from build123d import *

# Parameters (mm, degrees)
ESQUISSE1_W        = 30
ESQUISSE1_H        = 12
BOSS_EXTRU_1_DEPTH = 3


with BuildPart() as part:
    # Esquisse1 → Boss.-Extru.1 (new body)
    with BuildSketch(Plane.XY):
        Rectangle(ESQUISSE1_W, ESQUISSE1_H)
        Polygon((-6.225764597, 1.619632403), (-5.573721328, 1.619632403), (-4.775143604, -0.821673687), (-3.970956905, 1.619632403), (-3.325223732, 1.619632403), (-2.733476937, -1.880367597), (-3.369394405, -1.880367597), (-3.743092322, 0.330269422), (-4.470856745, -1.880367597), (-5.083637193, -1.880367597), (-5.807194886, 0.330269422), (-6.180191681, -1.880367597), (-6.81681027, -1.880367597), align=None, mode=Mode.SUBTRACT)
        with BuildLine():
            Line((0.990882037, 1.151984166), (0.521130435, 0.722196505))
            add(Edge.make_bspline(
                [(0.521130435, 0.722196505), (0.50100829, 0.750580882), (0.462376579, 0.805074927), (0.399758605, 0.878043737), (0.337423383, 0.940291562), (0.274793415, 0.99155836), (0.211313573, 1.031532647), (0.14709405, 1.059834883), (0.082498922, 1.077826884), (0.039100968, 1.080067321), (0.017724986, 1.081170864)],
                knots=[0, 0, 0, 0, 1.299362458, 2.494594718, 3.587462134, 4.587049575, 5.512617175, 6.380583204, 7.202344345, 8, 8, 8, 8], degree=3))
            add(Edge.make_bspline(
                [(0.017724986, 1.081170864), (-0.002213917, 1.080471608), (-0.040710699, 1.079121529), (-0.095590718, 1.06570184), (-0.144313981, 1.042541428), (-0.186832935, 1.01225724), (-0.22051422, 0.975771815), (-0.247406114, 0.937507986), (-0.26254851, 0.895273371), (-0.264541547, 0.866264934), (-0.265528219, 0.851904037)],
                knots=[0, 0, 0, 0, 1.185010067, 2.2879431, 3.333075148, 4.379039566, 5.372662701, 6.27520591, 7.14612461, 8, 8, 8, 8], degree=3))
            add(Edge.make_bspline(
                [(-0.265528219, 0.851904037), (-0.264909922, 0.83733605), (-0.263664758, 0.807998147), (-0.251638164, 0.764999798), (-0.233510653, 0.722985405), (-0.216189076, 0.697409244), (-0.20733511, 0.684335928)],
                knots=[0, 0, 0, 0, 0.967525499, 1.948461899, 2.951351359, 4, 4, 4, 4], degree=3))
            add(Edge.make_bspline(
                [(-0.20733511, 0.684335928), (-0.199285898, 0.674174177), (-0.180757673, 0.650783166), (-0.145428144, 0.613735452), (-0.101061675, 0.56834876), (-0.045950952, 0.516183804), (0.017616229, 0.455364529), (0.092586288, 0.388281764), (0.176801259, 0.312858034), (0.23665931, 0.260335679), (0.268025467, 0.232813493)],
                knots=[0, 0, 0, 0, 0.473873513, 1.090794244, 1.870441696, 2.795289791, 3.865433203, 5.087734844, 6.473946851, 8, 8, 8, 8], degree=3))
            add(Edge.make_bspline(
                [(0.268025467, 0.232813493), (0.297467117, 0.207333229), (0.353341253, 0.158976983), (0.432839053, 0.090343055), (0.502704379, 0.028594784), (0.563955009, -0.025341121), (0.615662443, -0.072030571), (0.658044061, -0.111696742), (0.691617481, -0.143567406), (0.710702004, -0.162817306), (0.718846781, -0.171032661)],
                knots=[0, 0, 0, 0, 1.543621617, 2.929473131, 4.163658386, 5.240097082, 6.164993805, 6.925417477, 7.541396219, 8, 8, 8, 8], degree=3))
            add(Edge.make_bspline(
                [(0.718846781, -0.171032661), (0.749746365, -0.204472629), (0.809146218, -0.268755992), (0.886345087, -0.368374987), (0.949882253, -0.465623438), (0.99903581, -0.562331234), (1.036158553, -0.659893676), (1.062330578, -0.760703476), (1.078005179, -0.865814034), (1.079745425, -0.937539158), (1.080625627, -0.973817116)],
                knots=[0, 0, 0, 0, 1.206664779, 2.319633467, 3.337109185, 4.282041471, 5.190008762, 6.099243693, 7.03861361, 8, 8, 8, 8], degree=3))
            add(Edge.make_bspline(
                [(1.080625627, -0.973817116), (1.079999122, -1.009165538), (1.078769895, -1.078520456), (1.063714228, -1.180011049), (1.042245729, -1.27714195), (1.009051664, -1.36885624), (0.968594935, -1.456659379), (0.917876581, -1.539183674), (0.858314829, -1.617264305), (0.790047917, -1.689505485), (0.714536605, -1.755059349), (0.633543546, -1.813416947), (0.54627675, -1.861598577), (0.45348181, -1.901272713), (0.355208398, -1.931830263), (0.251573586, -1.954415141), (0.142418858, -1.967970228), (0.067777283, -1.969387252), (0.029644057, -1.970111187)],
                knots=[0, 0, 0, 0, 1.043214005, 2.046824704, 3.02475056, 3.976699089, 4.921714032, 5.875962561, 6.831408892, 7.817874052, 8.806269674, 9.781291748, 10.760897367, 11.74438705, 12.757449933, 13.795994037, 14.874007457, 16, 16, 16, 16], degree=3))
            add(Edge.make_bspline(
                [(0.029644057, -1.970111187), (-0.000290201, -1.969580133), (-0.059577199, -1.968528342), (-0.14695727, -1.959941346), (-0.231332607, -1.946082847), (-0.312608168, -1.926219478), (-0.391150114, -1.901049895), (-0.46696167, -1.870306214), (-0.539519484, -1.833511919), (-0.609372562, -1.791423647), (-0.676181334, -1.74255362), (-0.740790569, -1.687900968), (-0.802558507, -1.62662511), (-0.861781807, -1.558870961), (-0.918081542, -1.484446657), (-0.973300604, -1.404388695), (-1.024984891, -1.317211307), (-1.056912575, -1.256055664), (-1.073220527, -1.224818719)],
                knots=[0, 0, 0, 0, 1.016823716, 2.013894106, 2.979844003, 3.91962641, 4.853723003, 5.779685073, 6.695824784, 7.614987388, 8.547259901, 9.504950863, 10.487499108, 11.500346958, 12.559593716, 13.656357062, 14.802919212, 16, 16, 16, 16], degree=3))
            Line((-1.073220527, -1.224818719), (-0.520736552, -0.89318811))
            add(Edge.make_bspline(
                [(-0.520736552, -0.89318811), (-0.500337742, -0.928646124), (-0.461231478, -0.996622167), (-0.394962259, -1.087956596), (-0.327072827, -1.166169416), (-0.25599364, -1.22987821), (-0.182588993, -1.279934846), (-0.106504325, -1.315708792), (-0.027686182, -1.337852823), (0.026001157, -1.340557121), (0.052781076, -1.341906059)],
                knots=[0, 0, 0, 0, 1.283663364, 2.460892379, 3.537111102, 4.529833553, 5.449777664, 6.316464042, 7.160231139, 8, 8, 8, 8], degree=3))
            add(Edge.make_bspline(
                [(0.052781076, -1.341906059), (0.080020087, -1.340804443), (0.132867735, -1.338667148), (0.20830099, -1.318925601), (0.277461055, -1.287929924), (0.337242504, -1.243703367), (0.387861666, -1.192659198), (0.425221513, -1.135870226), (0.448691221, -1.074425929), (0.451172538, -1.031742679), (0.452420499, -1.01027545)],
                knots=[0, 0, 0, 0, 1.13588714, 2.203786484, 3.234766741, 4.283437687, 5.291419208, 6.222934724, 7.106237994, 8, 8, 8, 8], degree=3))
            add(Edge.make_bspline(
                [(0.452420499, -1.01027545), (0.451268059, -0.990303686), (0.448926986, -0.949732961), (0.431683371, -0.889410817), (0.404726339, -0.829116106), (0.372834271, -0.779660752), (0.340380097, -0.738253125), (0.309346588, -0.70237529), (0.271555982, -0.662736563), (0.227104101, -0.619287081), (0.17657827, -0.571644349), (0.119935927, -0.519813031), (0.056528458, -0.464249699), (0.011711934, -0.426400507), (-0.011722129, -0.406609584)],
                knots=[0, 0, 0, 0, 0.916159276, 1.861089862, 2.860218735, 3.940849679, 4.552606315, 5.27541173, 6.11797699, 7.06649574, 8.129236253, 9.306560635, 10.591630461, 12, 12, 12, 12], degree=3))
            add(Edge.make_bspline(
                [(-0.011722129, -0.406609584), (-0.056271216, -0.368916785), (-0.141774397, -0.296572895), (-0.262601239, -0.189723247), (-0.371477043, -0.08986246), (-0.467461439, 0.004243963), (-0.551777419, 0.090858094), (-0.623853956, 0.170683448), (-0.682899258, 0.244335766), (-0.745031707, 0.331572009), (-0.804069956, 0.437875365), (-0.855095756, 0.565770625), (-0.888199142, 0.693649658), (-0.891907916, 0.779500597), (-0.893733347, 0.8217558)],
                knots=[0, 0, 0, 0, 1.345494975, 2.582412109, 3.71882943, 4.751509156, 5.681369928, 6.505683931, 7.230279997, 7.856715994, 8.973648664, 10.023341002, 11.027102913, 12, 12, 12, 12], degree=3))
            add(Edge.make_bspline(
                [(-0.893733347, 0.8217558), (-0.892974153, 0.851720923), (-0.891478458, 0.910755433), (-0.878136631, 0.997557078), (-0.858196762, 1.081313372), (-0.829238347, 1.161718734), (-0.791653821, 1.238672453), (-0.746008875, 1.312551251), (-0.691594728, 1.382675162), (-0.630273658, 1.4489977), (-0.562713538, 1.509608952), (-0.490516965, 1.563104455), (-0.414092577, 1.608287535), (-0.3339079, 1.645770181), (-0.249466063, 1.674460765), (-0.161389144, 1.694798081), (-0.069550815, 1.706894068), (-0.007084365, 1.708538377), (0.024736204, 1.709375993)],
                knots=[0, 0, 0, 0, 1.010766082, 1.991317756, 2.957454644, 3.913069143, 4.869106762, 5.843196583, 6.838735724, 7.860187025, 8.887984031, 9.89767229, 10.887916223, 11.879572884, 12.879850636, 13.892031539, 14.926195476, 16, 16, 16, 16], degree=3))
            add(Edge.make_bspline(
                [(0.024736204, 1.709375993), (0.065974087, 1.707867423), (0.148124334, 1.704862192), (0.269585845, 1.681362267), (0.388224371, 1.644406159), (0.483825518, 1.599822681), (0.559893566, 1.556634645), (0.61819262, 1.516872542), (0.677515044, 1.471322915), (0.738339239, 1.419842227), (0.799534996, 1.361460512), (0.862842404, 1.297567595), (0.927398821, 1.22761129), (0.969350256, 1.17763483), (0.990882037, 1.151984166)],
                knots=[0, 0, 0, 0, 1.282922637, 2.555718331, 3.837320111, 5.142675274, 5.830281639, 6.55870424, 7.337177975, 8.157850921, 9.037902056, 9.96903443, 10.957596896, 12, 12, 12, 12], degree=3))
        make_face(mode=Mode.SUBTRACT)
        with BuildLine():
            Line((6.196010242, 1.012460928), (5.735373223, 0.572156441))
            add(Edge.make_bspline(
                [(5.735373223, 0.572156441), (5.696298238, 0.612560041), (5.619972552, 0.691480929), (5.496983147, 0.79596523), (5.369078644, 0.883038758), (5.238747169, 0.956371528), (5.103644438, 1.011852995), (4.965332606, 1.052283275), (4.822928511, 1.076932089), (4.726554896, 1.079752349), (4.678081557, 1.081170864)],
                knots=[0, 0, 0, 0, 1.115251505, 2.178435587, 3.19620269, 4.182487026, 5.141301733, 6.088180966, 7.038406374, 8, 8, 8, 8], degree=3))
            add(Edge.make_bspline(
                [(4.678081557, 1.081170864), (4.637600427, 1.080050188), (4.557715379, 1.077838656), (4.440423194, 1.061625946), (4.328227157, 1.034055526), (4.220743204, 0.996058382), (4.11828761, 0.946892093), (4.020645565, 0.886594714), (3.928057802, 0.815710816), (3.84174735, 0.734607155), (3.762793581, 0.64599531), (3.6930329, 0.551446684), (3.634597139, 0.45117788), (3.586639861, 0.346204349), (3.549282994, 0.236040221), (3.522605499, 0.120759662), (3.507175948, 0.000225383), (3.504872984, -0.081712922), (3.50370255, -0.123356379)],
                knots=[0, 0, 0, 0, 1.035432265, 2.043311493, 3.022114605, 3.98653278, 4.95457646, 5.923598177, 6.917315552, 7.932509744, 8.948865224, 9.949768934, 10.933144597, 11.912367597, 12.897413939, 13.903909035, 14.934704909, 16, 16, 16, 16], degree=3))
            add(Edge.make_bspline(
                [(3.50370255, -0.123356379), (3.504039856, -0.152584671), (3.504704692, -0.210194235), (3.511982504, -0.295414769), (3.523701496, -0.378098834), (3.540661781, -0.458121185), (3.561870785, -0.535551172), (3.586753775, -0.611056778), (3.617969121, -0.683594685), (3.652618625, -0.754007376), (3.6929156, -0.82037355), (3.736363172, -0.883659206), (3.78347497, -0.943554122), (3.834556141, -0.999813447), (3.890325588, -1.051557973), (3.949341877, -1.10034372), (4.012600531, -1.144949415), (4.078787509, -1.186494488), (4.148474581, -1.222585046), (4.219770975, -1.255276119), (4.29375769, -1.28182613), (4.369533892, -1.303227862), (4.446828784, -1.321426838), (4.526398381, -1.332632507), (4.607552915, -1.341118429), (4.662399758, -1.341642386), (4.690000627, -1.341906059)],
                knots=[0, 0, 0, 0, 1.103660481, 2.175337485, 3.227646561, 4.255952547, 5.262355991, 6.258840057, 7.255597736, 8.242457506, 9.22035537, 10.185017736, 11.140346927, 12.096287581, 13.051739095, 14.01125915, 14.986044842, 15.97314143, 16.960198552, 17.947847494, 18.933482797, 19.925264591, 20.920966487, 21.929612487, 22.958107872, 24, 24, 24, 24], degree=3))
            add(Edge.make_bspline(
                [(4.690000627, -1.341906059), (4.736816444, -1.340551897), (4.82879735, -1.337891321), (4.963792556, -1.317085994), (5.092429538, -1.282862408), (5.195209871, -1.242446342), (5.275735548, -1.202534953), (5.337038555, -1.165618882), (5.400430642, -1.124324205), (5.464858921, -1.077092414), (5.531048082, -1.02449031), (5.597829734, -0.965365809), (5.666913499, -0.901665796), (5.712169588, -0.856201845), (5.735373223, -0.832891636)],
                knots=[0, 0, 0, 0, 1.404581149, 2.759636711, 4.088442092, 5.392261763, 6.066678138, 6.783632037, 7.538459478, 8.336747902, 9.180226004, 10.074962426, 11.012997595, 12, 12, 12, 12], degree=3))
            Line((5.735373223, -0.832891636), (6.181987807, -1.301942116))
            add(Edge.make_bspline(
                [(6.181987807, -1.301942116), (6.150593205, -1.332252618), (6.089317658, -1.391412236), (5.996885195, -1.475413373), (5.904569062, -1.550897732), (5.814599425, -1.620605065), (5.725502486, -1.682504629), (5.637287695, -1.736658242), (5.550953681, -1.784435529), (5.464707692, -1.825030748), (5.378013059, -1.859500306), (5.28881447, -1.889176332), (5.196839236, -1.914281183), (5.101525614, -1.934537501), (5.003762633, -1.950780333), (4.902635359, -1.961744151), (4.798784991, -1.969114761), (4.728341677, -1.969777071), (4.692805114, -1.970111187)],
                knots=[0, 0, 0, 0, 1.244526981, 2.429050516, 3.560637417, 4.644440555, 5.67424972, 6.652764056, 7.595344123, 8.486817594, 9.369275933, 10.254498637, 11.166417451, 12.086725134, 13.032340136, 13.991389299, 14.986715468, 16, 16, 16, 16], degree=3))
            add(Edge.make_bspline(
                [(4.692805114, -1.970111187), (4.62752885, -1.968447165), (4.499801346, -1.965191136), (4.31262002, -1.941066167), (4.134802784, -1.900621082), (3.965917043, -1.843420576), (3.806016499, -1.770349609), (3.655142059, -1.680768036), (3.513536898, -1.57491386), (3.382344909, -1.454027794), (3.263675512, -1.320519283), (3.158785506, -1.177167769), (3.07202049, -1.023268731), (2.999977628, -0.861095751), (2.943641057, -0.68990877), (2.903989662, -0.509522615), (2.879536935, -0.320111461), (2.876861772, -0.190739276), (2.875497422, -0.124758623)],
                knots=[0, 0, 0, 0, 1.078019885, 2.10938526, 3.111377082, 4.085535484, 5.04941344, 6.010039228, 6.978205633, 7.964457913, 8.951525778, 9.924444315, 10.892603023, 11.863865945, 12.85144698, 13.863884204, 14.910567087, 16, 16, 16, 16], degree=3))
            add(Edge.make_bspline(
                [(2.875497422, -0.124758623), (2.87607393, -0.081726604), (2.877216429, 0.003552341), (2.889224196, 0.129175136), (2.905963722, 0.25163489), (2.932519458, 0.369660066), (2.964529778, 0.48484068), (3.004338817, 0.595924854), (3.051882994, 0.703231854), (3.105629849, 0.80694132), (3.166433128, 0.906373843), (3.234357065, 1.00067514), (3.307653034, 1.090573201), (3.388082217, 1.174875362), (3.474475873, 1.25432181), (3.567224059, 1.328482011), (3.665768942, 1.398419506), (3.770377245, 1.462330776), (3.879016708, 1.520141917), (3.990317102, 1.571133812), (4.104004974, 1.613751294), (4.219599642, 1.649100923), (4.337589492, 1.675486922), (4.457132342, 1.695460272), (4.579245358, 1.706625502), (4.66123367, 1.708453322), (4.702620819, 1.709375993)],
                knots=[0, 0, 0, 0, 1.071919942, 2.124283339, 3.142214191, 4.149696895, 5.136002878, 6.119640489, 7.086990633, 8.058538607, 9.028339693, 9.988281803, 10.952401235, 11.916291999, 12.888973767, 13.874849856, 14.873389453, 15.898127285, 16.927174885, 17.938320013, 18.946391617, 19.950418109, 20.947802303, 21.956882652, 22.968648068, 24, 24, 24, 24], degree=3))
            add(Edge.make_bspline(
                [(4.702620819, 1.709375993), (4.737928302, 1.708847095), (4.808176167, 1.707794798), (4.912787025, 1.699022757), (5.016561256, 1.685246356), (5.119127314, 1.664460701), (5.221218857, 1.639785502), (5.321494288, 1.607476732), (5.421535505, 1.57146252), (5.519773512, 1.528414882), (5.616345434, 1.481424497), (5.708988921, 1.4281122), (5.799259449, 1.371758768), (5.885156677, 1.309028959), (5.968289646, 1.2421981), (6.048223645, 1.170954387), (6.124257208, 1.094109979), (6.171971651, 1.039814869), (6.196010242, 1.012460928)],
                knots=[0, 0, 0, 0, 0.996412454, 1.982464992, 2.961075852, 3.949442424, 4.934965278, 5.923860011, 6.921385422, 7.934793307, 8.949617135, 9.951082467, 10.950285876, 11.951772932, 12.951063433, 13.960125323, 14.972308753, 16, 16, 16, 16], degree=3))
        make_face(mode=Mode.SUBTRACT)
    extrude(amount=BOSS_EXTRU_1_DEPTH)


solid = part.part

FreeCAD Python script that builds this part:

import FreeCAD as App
import Part
import Sketcher

V = App.Vector

doc = App.newDocument("Part")
body = doc.addObject("PartDesign::Body", "Body")

# Sketch on XY plane
sketch1 = doc.addObject("Sketcher::SketchObject", "Sketch")
body.addObject(sketch1)
sketch1.AttachmentSupport = (doc.XY_Plane, [""])
sketch1.MapMode = "FlatFace"
sketch1.addGeometry(Part.LineSegment(V(-15, 6, 0), V(-15, -6, 0)), False)
sketch1.addGeometry(Part.LineSegment(V(-15, -6, 0), V(15, -6, 0)), False)
sketch1.addGeometry(Part.LineSegment(V(15, -6, 0), V(15, 6, 0)), False)
sketch1.addGeometry(Part.LineSegment(V(15, 6, 0), V(-15, 6, 0)), False)
sketch1.addGeometry(Part.LineSegment(V(-6.81681, -1.880368, 0), V(-6.225765, 1.619632, 0)), False)
sketch1.addGeometry(Part.LineSegment(V(-6.225765, 1.619632, 0), V(-5.573721, 1.619632, 0)), False)
sketch1.addGeometry(Part.LineSegment(V(-5.573721, 1.619632, 0), V(-4.775144, -0.821674, 0)), False)
sketch1.addGeometry(Part.LineSegment(V(-4.775144, -0.821674, 0), V(-3.970957, 1.619632, 0)), False)
sketch1.addGeometry(Part.LineSegment(V(-3.970957, 1.619632, 0), V(-3.325224, 1.619632, 0)), False)
sketch1.addGeometry(Part.LineSegment(V(-3.325224, 1.619632, 0), V(-2.733477, -1.880368, 0)), False)
sketch1.addGeometry(Part.LineSegment(V(-2.733477, -1.880368, 0), V(-3.369394, -1.880368, 0)), False)
sketch1.addGeometry(Part.LineSegment(V(-3.369394, -1.880368, 0), V(-3.743092, 0.330269, 0)), False)
sketch1.addGeometry(Part.LineSegment(V(-3.743092, 0.330269, 0), V(-4.470857, -1.880368, 0)), False)
sketch1.addGeometry(Part.LineSegment(V(-4.470857, -1.880368, 0), V(-5.083637, -1.880368, 0)), False)
sketch1.addGeometry(Part.LineSegment(V(-5.083637, -1.880368, 0), V(-5.807195, 0.330269, 0)), False)
sketch1.addGeometry(Part.LineSegment(V(-5.807195, 0.330269, 0), V(-6.180192, -1.880368, 0)), False)
sketch1.addGeometry(Part.LineSegment(V(-6.180192, -1.880368, 0), V(-6.81681, -1.880368, 0)), False)
sketch1.addGeometry(Part.BSplineCurve([V(0.024736, 1.709376, 0), V(0.065974, 1.707867, 0), V(0.148124, 1.704862, 0), V(0.269586, 1.681362, 0), V(0.388224, 1.644406, 0), V(0.483826, 1.599823, 0), V(0.559894, 1.556635, 0), V(0.618193, 1.516873, 0), V(0.677515, 1.471323, 0), V(0.738339, 1.419842, 0), V(0.799535, 1.361461, 0), V(0.862842, 1.297568, 0), V(0.927399, 1.227611, 0), V(0.96935, 1.177635, 0), V(0.990882, 1.151984, 0)], [4, 1, 1, 1, 1, 1, 1, 1, 1, 1, 1, 1, 4], [0, 1.282922637, 2.555718331, 3.837320111, 5.142675274, 5.830281639, 6.55870424, 7.337177975, 8.157850921, 9.037902056, 9.96903443, 10.957596896, 12], False, 3, [1, 1, 1, 1, 1, 1, 1, 1, 1, 1, 1, 1, 1, 1, 1], False), False)
sketch1.addGeometry(Part.LineSegment(V(0.990882, 1.151984, 0), V(0.52113, 0.722197, 0)), False)
sketch1.addGeometry(Part.BSplineCurve([V(0.52113, 0.722197, 0), V(0.501008, 0.750581, 0), V(0.462377, 0.805075, 0), V(0.399759, 0.878044, 0), V(0.337423, 0.940292, 0), V(0.274793, 0.991558, 0), V(0.211314, 1.031533, 0), V(0.147094, 1.059835, 0), V(0.082499, 1.077827, 0), V(0.039101, 1.080067, 0), V(0.017725, 1.081171, 0)], [4, 1, 1, 1, 1, 1, 1, 1, 4], [0, 1.299362458, 2.494594718, 3.587462134, 4.587049575, 5.512617175, 6.380583204, 7.202344345, 8], False, 3, [1, 1, 1, 1, 1, 1, 1, 1, 1, 1, 1], False), False)
sketch1.addGeometry(Part.BSplineCurve([V(0.017725, 1.081171, 0), V(-0.002214, 1.080472, 0), V(-0.040711, 1.079122, 0), V(-0.095591, 1.065702, 0), V(-0.144314, 1.042541, 0), V(-0.186833, 1.012257, 0), V(-0.220514, 0.975772, 0), V(-0.247406, 0.937508, 0), V(-0.262549, 0.895273, 0), V(-0.264542, 0.866265, 0), V(-0.265528, 0.851904, 0)], [4, 1, 1, 1, 1, 1, 1, 1, 4], [0, 1.185010067, 2.2879431, 3.333075148, 4.379039566, 5.372662701, 6.27520591, 7.14612461, 8], False, 3, [1, 1, 1, 1, 1, 1, 1, 1, 1, 1, 1], False), False)
sketch1.addGeometry(Part.BSplineCurve([V(-0.265528, 0.851904, 0), V(-0.26491, 0.837336, 0), V(-0.263665, 0.807998, 0), V(-0.251638, 0.765, 0), V(-0.233511, 0.722985, 0), V(-0.216189, 0.697409, 0), V(-0.207335, 0.684336, 0)], [4, 1, 1, 1, 4], [0, 0.967525499, 1.948461899, 2.951351359, 4], False, 3, [1, 1, 1, 1, 1, 1, 1], False), False)
sketch1.addGeometry(Part.BSplineCurve([V(-0.207335, 0.684336, 0), V(-0.199286, 0.674174, 0), V(-0.180758, 0.650783, 0), V(-0.145428, 0.613735, 0), V(-0.101062, 0.568349, 0), V(-0.045951, 0.516184, 0), V(0.017616, 0.455365, 0), V(0.092586, 0.388282, 0), V(0.176801, 0.312858, 0), V(0.236659, 0.260336, 0), V(0.268025, 0.232813, 0)], [4, 1, 1, 1, 1, 1, 1, 1, 4], [0, 0.473873513, 1.090794244, 1.870441696, 2.795289791, 3.865433203, 5.087734844, 6.473946851, 8], False, 3, [1, 1, 1, 1, 1, 1, 1, 1, 1, 1, 1], False), False)
sketch1.addGeometry(Part.BSplineCurve([V(0.268025, 0.232813, 0), V(0.297467, 0.207333, 0), V(0.353341, 0.158977, 0), V(0.432839, 0.090343, 0), V(0.502704, 0.028595, 0), V(0.563955, -0.025341, 0), V(0.615662, -0.072031, 0), V(0.658044, -0.111697, 0), V(0.691617, -0.143567, 0), V(0.710702, -0.162817, 0), V(0.718847, -0.171033, 0)], [4, 1, 1, 1, 1, 1, 1, 1, 4], [0, 1.543621617, 2.929473131, 4.163658386, 5.240097082, 6.164993805, 6.925417477, 7.541396219, 8], False, 3, [1, 1, 1, 1, 1, 1, 1, 1, 1, 1, 1], False), False)
sketch1.addGeometry(Part.BSplineCurve([V(0.718847, -0.171033, 0), V(0.749746, -0.204473, 0), V(0.809146, -0.268756, 0), V(0.886345, -0.368375, 0), V(0.949882, -0.465623, 0), V(0.999036, -0.562331, 0), V(1.036159, -0.659894, 0), V(1.062331, -0.760703, 0), V(1.078005, -0.865814, 0), V(1.079745, -0.937539, 0), V(1.080626, -0.973817, 0)], [4, 1, 1, 1, 1, 1, 1, 1, 4], [0, 1.206664779, 2.319633467, 3.337109185, 4.282041471, 5.190008762, 6.099243693, 7.03861361, 8], False, 3, [1, 1, 1, 1, 1, 1, 1, 1, 1, 1, 1], False), False)
sketch1.addGeometry(Part.BSplineCurve([V(1.080626, -0.973817, 0), V(1.079999, -1.009166, 0), V(1.07877, -1.07852, 0), V(1.063714, -1.180011, 0), V(1.042246, -1.277142, 0), V(1.009052, -1.368856, 0), V(0.968595, -1.456659, 0), V(0.917877, -1.539184, 0), V(0.858315, -1.617264, 0), V(0.790048, -1.689505, 0), V(0.714537, -1.755059, 0), V(0.633544, -1.813417, 0), V(0.546277, -1.861599, 0), V(0.453482, -1.901273, 0), V(0.355208, -1.93183, 0), V(0.251574, -1.954415, 0), V(0.142419, -1.96797, 0), V(0.067777, -1.969387, 0), V(0.029644, -1.970111, 0)], [4, 1, 1, 1, 1, 1, 1, 1, 1, 1, 1, 1, 1, 1, 1, 1, 4], [0, 1.043214005, 2.046824704, 3.02475056, 3.976699089, 4.921714032, 5.875962561, 6.831408892, 7.817874052, 8.806269674, 9.781291748, 10.760897367, 11.74438705, 12.757449933, 13.795994037, 14.874007457, 16], False, 3, [1, 1, 1, 1, 1, 1, 1, 1, 1, 1, 1, 1, 1, 1, 1, 1, 1, 1, 1], False), False)
sketch1.addGeometry(Part.BSplineCurve([V(0.029644, -1.970111, 0), V(-0.00029, -1.96958, 0), V(-0.059577, -1.968528, 0), V(-0.146957, -1.959941, 0), V(-0.231333, -1.946083, 0), V(-0.312608, -1.926219, 0), V(-0.39115, -1.90105, 0), V(-0.466962, -1.870306, 0), V(-0.539519, -1.833512, 0), V(-0.609373, -1.791424, 0), V(-0.676181, -1.742554, 0), V(-0.740791, -1.687901, 0), V(-0.802559, -1.626625, 0), V(-0.861782, -1.558871, 0), V(-0.918082, -1.484447, 0), V(-0.973301, -1.404389, 0), V(-1.024985, -1.317211, 0), V(-1.056913, -1.256056, 0), V(-1.073221, -1.224819, 0)], [4, 1, 1, 1, 1, 1, 1, 1, 1, 1, 1, 1, 1, 1, 1, 1, 4], [0, 1.016823716, 2.013894106, 2.979844003, 3.91962641, 4.853723003, 5.779685073, 6.695824784, 7.614987388, 8.547259901, 9.504950863, 10.487499108, 11.500346958, 12.559593716, 13.656357062, 14.802919212, 16], False, 3, [1, 1, 1, 1, 1, 1, 1, 1, 1, 1, 1, 1, 1, 1, 1, 1, 1, 1, 1], False), False)
sketch1.addGeometry(Part.LineSegment(V(-1.073221, -1.224819, 0), V(-0.520737, -0.893188, 0)), False)
sketch1.addGeometry(Part.BSplineCurve([V(-0.520737, -0.893188, 0), V(-0.500338, -0.928646, 0), V(-0.461231, -0.996622, 0), V(-0.394962, -1.087957, 0), V(-0.327073, -1.166169, 0), V(-0.255994, -1.229878, 0), V(-0.182589, -1.279935, 0), V(-0.106504, -1.315709, 0), V(-0.027686, -1.337853, 0), V(0.026001, -1.340557, 0), V(0.052781, -1.341906, 0)], [4, 1, 1, 1, 1, 1, 1, 1, 4], [0, 1.283663364, 2.460892379, 3.537111102, 4.529833553, 5.449777664, 6.316464042, 7.160231139, 8], False, 3, [1, 1, 1, 1, 1, 1, 1, 1, 1, 1, 1], False), False)
sketch1.addGeometry(Part.BSplineCurve([V(0.052781, -1.341906, 0), V(0.08002, -1.340804, 0), V(0.132868, -1.338667, 0), V(0.208301, -1.318926, 0), V(0.277461, -1.28793, 0), V(0.337243, -1.243703, 0), V(0.387862, -1.192659, 0), V(0.425222, -1.13587, 0), V(0.448691, -1.074426, 0), V(0.451173, -1.031743, 0), V(0.45242, -1.010275, 0)], [4, 1, 1, 1, 1, 1, 1, 1, 4], [0, 1.13588714, 2.203786484, 3.234766741, 4.283437687, 5.291419208, 6.222934724, 7.106237994, 8], False, 3, [1, 1, 1, 1, 1, 1, 1, 1, 1, 1, 1], False), False)
sketch1.addGeometry(Part.BSplineCurve([V(0.45242, -1.010275, 0), V(0.451268, -0.990304, 0), V(0.448927, -0.949733, 0), V(0.431683, -0.889411, 0), V(0.404726, -0.829116, 0), V(0.372834, -0.779661, 0), V(0.34038, -0.738253, 0), V(0.309347, -0.702375, 0), V(0.271556, -0.662737, 0), V(0.227104, -0.619287, 0), V(0.176578, -0.571644, 0), V(0.119936, -0.519813, 0), V(0.056528, -0.46425, 0), V(0.011712, -0.426401, 0), V(-0.011722, -0.40661, 0)], [4, 1, 1, 1, 1, 1, 1, 1, 1, 1, 1, 1, 4], [0, 0.916159276, 1.861089862, 2.860218735, 3.940849679, 4.552606315, 5.27541173, 6.11797699, 7.06649574, 8.129236253, 9.306560635, 10.591630461, 12], False, 3, [1, 1, 1, 1, 1, 1, 1, 1, 1, 1, 1, 1, 1, 1, 1], False), False)
sketch1.addGeometry(Part.BSplineCurve([V(-0.011722, -0.40661, 0), V(-0.056271, -0.368917, 0), V(-0.141774, -0.296573, 0), V(-0.262601, -0.189723, 0), V(-0.371477, -0.089862, 0), V(-0.467461, 0.004244, 0), V(-0.551777, 0.090858, 0), V(-0.623854, 0.170683, 0), V(-0.682899, 0.244336, 0), V(-0.745032, 0.331572, 0), V(-0.80407, 0.437875, 0), V(-0.855096, 0.565771, 0), V(-0.888199, 0.69365, 0), V(-0.891908, 0.779501, 0), V(-0.893733, 0.821756, 0)], [4, 1, 1, 1, 1, 1, 1, 1, 1, 1, 1, 1, 4], [0, 1.345494975, 2.582412109, 3.71882943, 4.751509156, 5.681369928, 6.505683931, 7.230279997, 7.856715994, 8.973648664, 10.023341002, 11.027102913, 12], False, 3, [1, 1, 1, 1, 1, 1, 1, 1, 1, 1, 1, 1, 1, 1, 1], False), False)
sketch1.addGeometry(Part.BSplineCurve([V(-0.893733, 0.821756, 0), V(-0.892974, 0.851721, 0), V(-0.891478, 0.910755, 0), V(-0.878137, 0.997557, 0), V(-0.858197, 1.081313, 0), V(-0.829238, 1.161719, 0), V(-0.791654, 1.238672, 0), V(-0.746009, 1.312551, 0), V(-0.691595, 1.382675, 0), V(-0.630274, 1.448998, 0), V(-0.562714, 1.509609, 0), V(-0.490517, 1.563104, 0), V(-0.414093, 1.608288, 0), V(-0.333908, 1.64577, 0), V(-0.249466, 1.674461, 0), V(-0.161389, 1.694798, 0), V(-0.069551, 1.706894, 0), V(-0.007084, 1.708538, 0), V(0.024736, 1.709376, 0)], [4, 1, 1, 1, 1, 1, 1, 1, 1, 1, 1, 1, 1, 1, 1, 1, 4], [0, 1.010766082, 1.991317756, 2.957454644, 3.913069143, 4.869106762, 5.843196583, 6.838735724, 7.860187025, 8.887984031, 9.89767229, 10.887916223, 11.879572884, 12.879850636, 13.892031539, 14.926195476, 16], False, 3, [1, 1, 1, 1, 1, 1, 1, 1, 1, 1, 1, 1, 1, 1, 1, 1, 1, 1, 1], False), False)
sketch1.addGeometry(Part.BSplineCurve([V(4.702621, 1.709376, 0), V(4.737928, 1.708847, 0), V(4.808176, 1.707795, 0), V(4.912787, 1.699023, 0), V(5.016561, 1.685246, 0), V(5.119127, 1.664461, 0), V(5.221219, 1.639786, 0), V(5.321494, 1.607477, 0), V(5.421536, 1.571463, 0), V(5.519774, 1.528415, 0), V(5.616345, 1.481424, 0), V(5.708989, 1.428112, 0), V(5.799259, 1.371759, 0), V(5.885157, 1.309029, 0), V(5.96829, 1.242198, 0), V(6.048224, 1.170954, 0), V(6.124257, 1.09411, 0), V(6.171972, 1.039815, 0), V(6.19601, 1.012461, 0)], [4, 1, 1, 1, 1, 1, 1, 1, 1, 1, 1, 1, 1, 1, 1, 1, 4], [0, 0.996412454, 1.982464992, 2.961075852, 3.949442424, 4.934965278, 5.923860011, 6.921385422, 7.934793307, 8.949617135, 9.951082467, 10.950285876, 11.951772932, 12.951063433, 13.960125323, 14.972308753, 16], False, 3, [1, 1, 1, 1, 1, 1, 1, 1, 1, 1, 1, 1, 1, 1, 1, 1, 1, 1, 1], False), False)
sketch1.addGeometry(Part.LineSegment(V(6.19601, 1.012461, 0), V(5.735373, 0.572156, 0)), False)
sketch1.addGeometry(Part.BSplineCurve([V(5.735373, 0.572156, 0), V(5.696298, 0.61256, 0), V(5.619973, 0.691481, 0), V(5.496983, 0.795965, 0), V(5.369079, 0.883039, 0), V(5.238747, 0.956372, 0), V(5.103644, 1.011853, 0), V(4.965333, 1.052283, 0), V(4.822929, 1.076932, 0), V(4.726555, 1.079752, 0), V(4.678082, 1.081171, 0)], [4, 1, 1, 1, 1, 1, 1, 1, 4], [0, 1.115251505, 2.178435587, 3.19620269, 4.182487026, 5.141301733, 6.088180966, 7.038406374, 8], False, 3, [1, 1, 1, 1, 1, 1, 1, 1, 1, 1, 1], False), False)
sketch1.addGeometry(Part.BSplineCurve([V(4.678082, 1.081171, 0), V(4.6376, 1.08005, 0), V(4.557715, 1.077839, 0), V(4.440423, 1.061626, 0), V(4.328227, 1.034056, 0), V(4.220743, 0.996058, 0), V(4.118288, 0.946892, 0), V(4.020646, 0.886595, 0), V(3.928058, 0.815711, 0), V(3.841747, 0.734607, 0), V(3.762794, 0.645995, 0), V(3.693033, 0.551447, 0), V(3.634597, 0.451178, 0), V(3.58664, 0.346204, 0), V(3.549283, 0.23604, 0), V(3.522605, 0.12076, 0), V(3.507176, 0.000225, 0), V(3.504873, -0.081713, 0), V(3.503703, -0.123356, 0)], [4, 1, 1, 1, 1, 1, 1, 1, 1, 1, 1, 1, 1, 1, 1, 1, 4], [0, 1.035432265, 2.043311493, 3.022114605, 3.98653278, 4.95457646, 5.923598177, 6.917315552, 7.932509744, 8.948865224, 9.949768934, 10.933144597, 11.912367597, 12.897413939, 13.903909035, 14.934704909, 16], False, 3, [1, 1, 1, 1, 1, 1, 1, 1, 1, 1, 1, 1, 1, 1, 1, 1, 1, 1, 1], False), False)
sketch1.addGeometry(Part.BSplineCurve([V(3.503703, -0.123356, 0), V(3.50404, -0.152585, 0), V(3.504705, -0.210194, 0), V(3.511983, -0.295415, 0), V(3.523701, -0.378099, 0), V(3.540662, -0.458121, 0), V(3.561871, -0.535551, 0), V(3.586754, -0.611057, 0), V(3.617969, -0.683595, 0), V(3.652619, -0.754007, 0), V(3.692916, -0.820374, 0), V(3.736363, -0.883659, 0), V(3.783475, -0.943554, 0), V(3.834556, -0.999813, 0), V(3.890326, -1.051558, 0), V(3.949342, -1.100344, 0), V(4.012601, -1.144949, 0), V(4.078788, -1.186494, 0), V(4.148475, -1.222585, 0), V(4.219771, -1.255276, 0), V(4.293758, -1.281826, 0), V(4.369534, -1.303228, 0), V(4.446829, -1.321427, 0), V(4.526398, -1.332633, 0), V(4.607553, -1.341118, 0), V(4.6624, -1.341642, 0), V(4.690001, -1.341906, 0)], [4, 1, 1, 1, 1, 1, 1, 1, 1, 1, 1, 1, 1, 1, 1, 1, 1, 1, 1, 1, 1, 1, 1, 1, 4], [0, 1.103660481, 2.175337485, 3.227646561, 4.255952547, 5.262355991, 6.258840057, 7.255597736, 8.242457506, 9.22035537, 10.185017736, 11.140346927, 12.096287581, 13.051739095, 14.01125915, 14.986044842, 15.97314143, 16.960198552, 17.947847494, 18.933482797, 19.925264591, 20.920966487, 21.929612487, 22.958107872, 24], False, 3, [1, 1, 1, 1, 1, 1, 1, 1, 1, 1, 1, 1, 1, 1, 1, 1, 1, 1, 1, 1, 1, 1, 1, 1, 1, 1, 1], False), False)
sketch1.addGeometry(Part.BSplineCurve([V(4.690001, -1.341906, 0), V(4.736816, -1.340552, 0), V(4.828797, -1.337891, 0), V(4.963793, -1.317086, 0), V(5.09243, -1.282862, 0), V(5.19521, -1.242446, 0), V(5.275736, -1.202535, 0), V(5.337039, -1.165619, 0), V(5.400431, -1.124324, 0), V(5.464859, -1.077092, 0), V(5.531048, -1.02449, 0), V(5.59783, -0.965366, 0), V(5.666913, -0.901666, 0), V(5.71217, -0.856202, 0), V(5.735373, -0.832892, 0)], [4, 1, 1, 1, 1, 1, 1, 1, 1, 1, 1, 1, 4], [0, 1.404581149, 2.759636711, 4.088442092, 5.392261763, 6.066678138, 6.783632037, 7.538459478, 8.336747902, 9.180226004, 10.074962426, 11.012997595, 12], False, 3, [1, 1, 1, 1, 1, 1, 1, 1, 1, 1, 1, 1, 1, 1, 1], False), False)
sketch1.addGeometry(Part.LineSegment(V(5.735373, -0.832892, 0), V(6.181988, -1.301942, 0)), False)
sketch1.addGeometry(Part.BSplineCurve([V(6.181988, -1.301942, 0), V(6.150593, -1.332253, 0), V(6.089318, -1.391412, 0), V(5.996885, -1.475413, 0), V(5.904569, -1.550898, 0), V(5.814599, -1.620605, 0), V(5.725502, -1.682505, 0), V(5.637288, -1.736658, 0), V(5.550954, -1.784436, 0), V(5.464708, -1.825031, 0), V(5.378013, -1.8595, 0), V(5.288814, -1.889176, 0), V(5.196839, -1.914281, 0), V(5.101526, -1.934538, 0), V(5.003763, -1.95078, 0), V(4.902635, -1.961744, 0), V(4.798785, -1.969115, 0), V(4.728342, -1.969777, 0), V(4.692805, -1.970111, 0)], [4, 1, 1, 1, 1, 1, 1, 1, 1, 1, 1, 1, 1, 1, 1, 1, 4], [0, 1.244526981, 2.429050516, 3.560637417, 4.644440555, 5.67424972, 6.652764056, 7.595344123, 8.486817594, 9.369275933, 10.254498637, 11.166417451, 12.086725134, 13.032340136, 13.991389299, 14.986715468, 16], False, 3, [1, 1, 1, 1, 1, 1, 1, 1, 1, 1, 1, 1, 1, 1, 1, 1, 1, 1, 1], False), False)
sketch1.addGeometry(Part.BSplineCurve([V(4.692805, -1.970111, 0), V(4.627529, -1.968447, 0), V(4.499801, -1.965191, 0), V(4.31262, -1.941066, 0), V(4.134803, -1.900621, 0), V(3.965917, -1.843421, 0), V(3.806016, -1.77035, 0), V(3.655142, -1.680768, 0), V(3.513537, -1.574914, 0), V(3.382345, -1.454028, 0), V(3.263676, -1.320519, 0), V(3.158786, -1.177168, 0), V(3.07202, -1.023269, 0), V(2.999978, -0.861096, 0), V(2.943641, -0.689909, 0), V(2.90399, -0.509523, 0), V(2.879537, -0.320111, 0), V(2.876862, -0.190739, 0), V(2.875497, -0.124759, 0)], [4, 1, 1, 1, 1, 1, 1, 1, 1, 1, 1, 1, 1, 1, 1, 1, 4], [0, 1.078019885, 2.10938526, 3.111377082, 4.085535484, 5.04941344, 6.010039228, 6.978205633, 7.964457913, 8.951525778, 9.924444315, 10.892603023, 11.863865945, 12.85144698, 13.863884204, 14.910567087, 16], False, 3, [1, 1, 1, 1, 1, 1, 1, 1, 1, 1, 1, 1, 1, 1, 1, 1, 1, 1, 1], False), False)
sketch1.addGeometry(Part.BSplineCurve([V(2.875497, -0.124759, 0), V(2.876074, -0.081727, 0), V(2.877216, 0.003552, 0), V(2.889224, 0.129175, 0), V(2.905964, 0.251635, 0), V(2.932519, 0.36966, 0), V(2.96453, 0.484841, 0), V(3.004339, 0.595925, 0), V(3.051883, 0.703232, 0), V(3.10563, 0.806941, 0), V(3.166433, 0.906374, 0), V(3.234357, 1.000675, 0), V(3.307653, 1.090573, 0), V(3.388082, 1.174875, 0), V(3.474476, 1.254322, 0), V(3.567224, 1.328482, 0), V(3.665769, 1.39842, 0), V(3.770377, 1.462331, 0), V(3.879017, 1.520142, 0), V(3.990317, 1.571134, 0), V(4.104005, 1.613751, 0), V(4.2196, 1.649101, 0), V(4.337589, 1.675487, 0), V(4.457132, 1.69546, 0), V(4.579245, 1.706626, 0), V(4.661234, 1.708453, 0), V(4.702621, 1.709376, 0)], [4, 1, 1, 1, 1, 1, 1, 1, 1, 1, 1, 1, 1, 1, 1, 1, 1, 1, 1, 1, 1, 1, 1, 1, 4], [0, 1.071919942, 2.124283339, 3.142214191, 4.149696895, 5.136002878, 6.119640489, 7.086990633, 8.058538607, 9.028339693, 9.988281803, 10.952401235, 11.916291999, 12.888973767, 13.874849856, 14.873389453, 15.898127285, 16.927174885, 17.938320013, 18.946391617, 19.950418109, 20.947802303, 21.956882652, 22.968648068, 24], False, 3, [1, 1, 1, 1, 1, 1, 1, 1, 1, 1, 1, 1, 1, 1, 1, 1, 1, 1, 1, 1, 1, 1, 1, 1, 1, 1, 1], False), False)
sketch1.addConstraint(Sketcher.Constraint("Block", 17))
sketch1.addConstraint(Sketcher.Constraint("Block", 19))
sketch1.addConstraint(Sketcher.Constraint("Block", 20))
sketch1.addConstraint(Sketcher.Constraint("Block", 21))
sketch1.addConstraint(Sketcher.Constraint("Block", 22))
sketch1.addConstraint(Sketcher.Constraint("Block", 23))
sketch1.addConstraint(Sketcher.Constraint("Block", 24))
sketch1.addConstraint(Sketcher.Constraint("Block", 25))
sketch1.addConstraint(Sketcher.Constraint("Block", 26))
sketch1.addConstraint(Sketcher.Constraint("Block", 28))
sketch1.addConstraint(Sketcher.Constraint("Block", 29))
sketch1.addConstraint(Sketcher.Constraint("Block", 30))
sketch1.addConstraint(Sketcher.Constraint("Block", 31))
sketch1.addConstraint(Sketcher.Constraint("Block", 32))
sketch1.addConstraint(Sketcher.Constraint("Block", 33))
sketch1.addConstraint(Sketcher.Constraint("Block", 35))
sketch1.addConstraint(Sketcher.Constraint("Block", 36))
sketch1.addConstraint(Sketcher.Constraint("Block", 37))
sketch1.addConstraint(Sketcher.Constraint("Block", 38))
sketch1.addConstraint(Sketcher.Constraint("Block", 40))
sketch1.addConstraint(Sketcher.Constraint("Block", 41))
sketch1.addConstraint(Sketcher.Constraint("Block", 42))
sketch1.addConstraint(Sketcher.Constraint("Coincident", 0, 2, 1, 1))
sketch1.addConstraint(Sketcher.Constraint("Coincident", 1, 2, 2, 1))
sketch1.addConstraint(Sketcher.Constraint("Coincident", 2, 2, 3, 1))
sketch1.addConstraint(Sketcher.Constraint("Coincident", 3, 2, 0, 1))
sketch1.addConstraint(Sketcher.Constraint("Coincident", 4, 2, 5, 1))
sketch1.addConstraint(Sketcher.Constraint("Coincident", 5, 2, 6, 1))
sketch1.addConstraint(Sketcher.Constraint("Coincident", 6, 2, 7, 1))
sketch1.addConstraint(Sketcher.Constraint("Coincident", 7, 2, 8, 1))
sketch1.addConstraint(Sketcher.Constraint("Coincident", 8, 2, 9, 1))
sketch1.addConstraint(Sketcher.Constraint("Coincident", 9, 2, 10, 1))
sketch1.addConstraint(Sketcher.Constraint("Coincident", 10, 2, 11, 1))
sketch1.addConstraint(Sketcher.Constraint("Coincident", 11, 2, 12, 1))
sketch1.addConstraint(Sketcher.Constraint("Coincident", 12, 2, 13, 1))
sketch1.addConstraint(Sketcher.Constraint("Coincident", 13, 2, 14, 1))
sketch1.addConstraint(Sketcher.Constraint("Coincident", 14, 2, 15, 1))
sketch1.addConstraint(Sketcher.Constraint("Coincident", 15, 2, 16, 1))
sketch1.addConstraint(Sketcher.Constraint("Coincident", 16, 2, 4, 1))
sketch1.addConstraint(Sketcher.Constraint("Coincident", 17, 2, 18, 1))
sketch1.addConstraint(Sketcher.Constraint("Coincident", 18, 2, 19, 1))
sketch1.addConstraint(Sketcher.Constraint("Coincident", 26, 2, 27, 1))
sketch1.addConstraint(Sketcher.Constraint("Coincident", 27, 2, 28, 1))
sketch1.addConstraint(Sketcher.Constraint("Coincident", 33, 2, 34, 1))
sketch1.addConstraint(Sketcher.Constraint("Coincident", 34, 2, 35, 1))
sketch1.addConstraint(Sketcher.Constraint("Coincident", 38, 2, 39, 1))
sketch1.addConstraint(Sketcher.Constraint("Coincident", 39, 2, 40, 1))
sketch1.addConstraint(Sketcher.Constraint("Vertical", 0))
sketch1.addConstraint(Sketcher.Constraint("Horizontal", 1))
sketch1.addConstraint(Sketcher.Constraint("Vertical", 2))
sketch1.addConstraint(Sketcher.Constraint("Horizontal", 3))
sketch1.addConstraint(Sketcher.Constraint("Horizontal", 5))
sketch1.addConstraint(Sketcher.Constraint("Horizontal", 8))
sketch1.addConstraint(Sketcher.Constraint("Horizontal", 10))
sketch1.addConstraint(Sketcher.Constraint("Horizontal", 13))
sketch1.addConstraint(Sketcher.Constraint("Horizontal", 16))
sketch1.addConstraint(Sketcher.Constraint("Symmetric", 0, 2, 2, 2, -1, 1))
sketch1.addConstraint(Sketcher.Constraint("Horizontal", 5, 2, 7, 2))
sketch1.addConstraint(Sketcher.Constraint("Horizontal", 10, 2, 12, 2))
sketch1.addConstraint(Sketcher.Constraint("Horizontal", 11, 2, 14, 2))
sketch1.addConstraint(Sketcher.Constraint("Horizontal", 13, 2, 15, 2))
sketch1.addConstraint(Sketcher.Constraint("DistanceX", 1, 1, 1, 2, 30.0))
sketch1.addConstraint(Sketcher.Constraint("DistanceY", 0, 2, 0, 1, 12.0))
sketch1.addConstraint(Sketcher.Constraint("DistanceY", 9, 2, 8, 2, 3.5))
sketch1.addConstraint(Sketcher.Constraint("Distance", 11, 2.242))
sketch1.addConstraint(Sketcher.Constraint("Distance", 6, 2.568599))
sketch1.addConstraint(Sketcher.Constraint("DistanceX", 13, 2, 13, 1, 0.61278))
sketch1.addConstraint(Sketcher.Constraint("DistanceX", 16, 2, 16, 1, 0.636619))
sketch1.addConstraint(Sketcher.Constraint("DistanceX", 12, 2, 7, 2, 0.4999))
sketch1.addConstraint(Sketcher.Constraint("Distance", 7, 2.570349))
sketch1.addConstraint(Sketcher.Constraint("Distance", 9, 3.549671))
sketch1.addConstraint(Sketcher.Constraint("Distance", 12, 2.32735))
sketch1.addConstraint(Sketcher.Constraint("DistanceX", 5, 1, 5, 2, 0.652043))
sketch1.addConstraint(Sketcher.Constraint("DistanceX", 8, 1, 8, 2, 0.645733))
sketch1.addConstraint(Sketcher.Constraint("DistanceX", 10, 2, 10, 1, 0.635917))
sketch1.addConstraint(Sketcher.Constraint("DistanceX", 5, 2, -1, 1, 5.573721))
sketch1.addConstraint(Sketcher.Constraint("DistanceY", -1, 1, 11, 2, 0.330269))
sketch1.addConstraint(Sketcher.Constraint("DistanceX", 15, 2, -1, 1, 6.180192))
sketch1.addConstraint(Sketcher.Constraint("DistanceX", 4, 2, 6, 2, 1.450621))
sketch1.addConstraint(Sketcher.Constraint("DistanceX", 4, 2, 14, 2, 0.41857))
pad1 = doc.addObject("PartDesign::Pad", "Pad")
body.addObject(pad1)
pad1.Profile = sketch1
pad1.Length = 3

doc.recompute()
